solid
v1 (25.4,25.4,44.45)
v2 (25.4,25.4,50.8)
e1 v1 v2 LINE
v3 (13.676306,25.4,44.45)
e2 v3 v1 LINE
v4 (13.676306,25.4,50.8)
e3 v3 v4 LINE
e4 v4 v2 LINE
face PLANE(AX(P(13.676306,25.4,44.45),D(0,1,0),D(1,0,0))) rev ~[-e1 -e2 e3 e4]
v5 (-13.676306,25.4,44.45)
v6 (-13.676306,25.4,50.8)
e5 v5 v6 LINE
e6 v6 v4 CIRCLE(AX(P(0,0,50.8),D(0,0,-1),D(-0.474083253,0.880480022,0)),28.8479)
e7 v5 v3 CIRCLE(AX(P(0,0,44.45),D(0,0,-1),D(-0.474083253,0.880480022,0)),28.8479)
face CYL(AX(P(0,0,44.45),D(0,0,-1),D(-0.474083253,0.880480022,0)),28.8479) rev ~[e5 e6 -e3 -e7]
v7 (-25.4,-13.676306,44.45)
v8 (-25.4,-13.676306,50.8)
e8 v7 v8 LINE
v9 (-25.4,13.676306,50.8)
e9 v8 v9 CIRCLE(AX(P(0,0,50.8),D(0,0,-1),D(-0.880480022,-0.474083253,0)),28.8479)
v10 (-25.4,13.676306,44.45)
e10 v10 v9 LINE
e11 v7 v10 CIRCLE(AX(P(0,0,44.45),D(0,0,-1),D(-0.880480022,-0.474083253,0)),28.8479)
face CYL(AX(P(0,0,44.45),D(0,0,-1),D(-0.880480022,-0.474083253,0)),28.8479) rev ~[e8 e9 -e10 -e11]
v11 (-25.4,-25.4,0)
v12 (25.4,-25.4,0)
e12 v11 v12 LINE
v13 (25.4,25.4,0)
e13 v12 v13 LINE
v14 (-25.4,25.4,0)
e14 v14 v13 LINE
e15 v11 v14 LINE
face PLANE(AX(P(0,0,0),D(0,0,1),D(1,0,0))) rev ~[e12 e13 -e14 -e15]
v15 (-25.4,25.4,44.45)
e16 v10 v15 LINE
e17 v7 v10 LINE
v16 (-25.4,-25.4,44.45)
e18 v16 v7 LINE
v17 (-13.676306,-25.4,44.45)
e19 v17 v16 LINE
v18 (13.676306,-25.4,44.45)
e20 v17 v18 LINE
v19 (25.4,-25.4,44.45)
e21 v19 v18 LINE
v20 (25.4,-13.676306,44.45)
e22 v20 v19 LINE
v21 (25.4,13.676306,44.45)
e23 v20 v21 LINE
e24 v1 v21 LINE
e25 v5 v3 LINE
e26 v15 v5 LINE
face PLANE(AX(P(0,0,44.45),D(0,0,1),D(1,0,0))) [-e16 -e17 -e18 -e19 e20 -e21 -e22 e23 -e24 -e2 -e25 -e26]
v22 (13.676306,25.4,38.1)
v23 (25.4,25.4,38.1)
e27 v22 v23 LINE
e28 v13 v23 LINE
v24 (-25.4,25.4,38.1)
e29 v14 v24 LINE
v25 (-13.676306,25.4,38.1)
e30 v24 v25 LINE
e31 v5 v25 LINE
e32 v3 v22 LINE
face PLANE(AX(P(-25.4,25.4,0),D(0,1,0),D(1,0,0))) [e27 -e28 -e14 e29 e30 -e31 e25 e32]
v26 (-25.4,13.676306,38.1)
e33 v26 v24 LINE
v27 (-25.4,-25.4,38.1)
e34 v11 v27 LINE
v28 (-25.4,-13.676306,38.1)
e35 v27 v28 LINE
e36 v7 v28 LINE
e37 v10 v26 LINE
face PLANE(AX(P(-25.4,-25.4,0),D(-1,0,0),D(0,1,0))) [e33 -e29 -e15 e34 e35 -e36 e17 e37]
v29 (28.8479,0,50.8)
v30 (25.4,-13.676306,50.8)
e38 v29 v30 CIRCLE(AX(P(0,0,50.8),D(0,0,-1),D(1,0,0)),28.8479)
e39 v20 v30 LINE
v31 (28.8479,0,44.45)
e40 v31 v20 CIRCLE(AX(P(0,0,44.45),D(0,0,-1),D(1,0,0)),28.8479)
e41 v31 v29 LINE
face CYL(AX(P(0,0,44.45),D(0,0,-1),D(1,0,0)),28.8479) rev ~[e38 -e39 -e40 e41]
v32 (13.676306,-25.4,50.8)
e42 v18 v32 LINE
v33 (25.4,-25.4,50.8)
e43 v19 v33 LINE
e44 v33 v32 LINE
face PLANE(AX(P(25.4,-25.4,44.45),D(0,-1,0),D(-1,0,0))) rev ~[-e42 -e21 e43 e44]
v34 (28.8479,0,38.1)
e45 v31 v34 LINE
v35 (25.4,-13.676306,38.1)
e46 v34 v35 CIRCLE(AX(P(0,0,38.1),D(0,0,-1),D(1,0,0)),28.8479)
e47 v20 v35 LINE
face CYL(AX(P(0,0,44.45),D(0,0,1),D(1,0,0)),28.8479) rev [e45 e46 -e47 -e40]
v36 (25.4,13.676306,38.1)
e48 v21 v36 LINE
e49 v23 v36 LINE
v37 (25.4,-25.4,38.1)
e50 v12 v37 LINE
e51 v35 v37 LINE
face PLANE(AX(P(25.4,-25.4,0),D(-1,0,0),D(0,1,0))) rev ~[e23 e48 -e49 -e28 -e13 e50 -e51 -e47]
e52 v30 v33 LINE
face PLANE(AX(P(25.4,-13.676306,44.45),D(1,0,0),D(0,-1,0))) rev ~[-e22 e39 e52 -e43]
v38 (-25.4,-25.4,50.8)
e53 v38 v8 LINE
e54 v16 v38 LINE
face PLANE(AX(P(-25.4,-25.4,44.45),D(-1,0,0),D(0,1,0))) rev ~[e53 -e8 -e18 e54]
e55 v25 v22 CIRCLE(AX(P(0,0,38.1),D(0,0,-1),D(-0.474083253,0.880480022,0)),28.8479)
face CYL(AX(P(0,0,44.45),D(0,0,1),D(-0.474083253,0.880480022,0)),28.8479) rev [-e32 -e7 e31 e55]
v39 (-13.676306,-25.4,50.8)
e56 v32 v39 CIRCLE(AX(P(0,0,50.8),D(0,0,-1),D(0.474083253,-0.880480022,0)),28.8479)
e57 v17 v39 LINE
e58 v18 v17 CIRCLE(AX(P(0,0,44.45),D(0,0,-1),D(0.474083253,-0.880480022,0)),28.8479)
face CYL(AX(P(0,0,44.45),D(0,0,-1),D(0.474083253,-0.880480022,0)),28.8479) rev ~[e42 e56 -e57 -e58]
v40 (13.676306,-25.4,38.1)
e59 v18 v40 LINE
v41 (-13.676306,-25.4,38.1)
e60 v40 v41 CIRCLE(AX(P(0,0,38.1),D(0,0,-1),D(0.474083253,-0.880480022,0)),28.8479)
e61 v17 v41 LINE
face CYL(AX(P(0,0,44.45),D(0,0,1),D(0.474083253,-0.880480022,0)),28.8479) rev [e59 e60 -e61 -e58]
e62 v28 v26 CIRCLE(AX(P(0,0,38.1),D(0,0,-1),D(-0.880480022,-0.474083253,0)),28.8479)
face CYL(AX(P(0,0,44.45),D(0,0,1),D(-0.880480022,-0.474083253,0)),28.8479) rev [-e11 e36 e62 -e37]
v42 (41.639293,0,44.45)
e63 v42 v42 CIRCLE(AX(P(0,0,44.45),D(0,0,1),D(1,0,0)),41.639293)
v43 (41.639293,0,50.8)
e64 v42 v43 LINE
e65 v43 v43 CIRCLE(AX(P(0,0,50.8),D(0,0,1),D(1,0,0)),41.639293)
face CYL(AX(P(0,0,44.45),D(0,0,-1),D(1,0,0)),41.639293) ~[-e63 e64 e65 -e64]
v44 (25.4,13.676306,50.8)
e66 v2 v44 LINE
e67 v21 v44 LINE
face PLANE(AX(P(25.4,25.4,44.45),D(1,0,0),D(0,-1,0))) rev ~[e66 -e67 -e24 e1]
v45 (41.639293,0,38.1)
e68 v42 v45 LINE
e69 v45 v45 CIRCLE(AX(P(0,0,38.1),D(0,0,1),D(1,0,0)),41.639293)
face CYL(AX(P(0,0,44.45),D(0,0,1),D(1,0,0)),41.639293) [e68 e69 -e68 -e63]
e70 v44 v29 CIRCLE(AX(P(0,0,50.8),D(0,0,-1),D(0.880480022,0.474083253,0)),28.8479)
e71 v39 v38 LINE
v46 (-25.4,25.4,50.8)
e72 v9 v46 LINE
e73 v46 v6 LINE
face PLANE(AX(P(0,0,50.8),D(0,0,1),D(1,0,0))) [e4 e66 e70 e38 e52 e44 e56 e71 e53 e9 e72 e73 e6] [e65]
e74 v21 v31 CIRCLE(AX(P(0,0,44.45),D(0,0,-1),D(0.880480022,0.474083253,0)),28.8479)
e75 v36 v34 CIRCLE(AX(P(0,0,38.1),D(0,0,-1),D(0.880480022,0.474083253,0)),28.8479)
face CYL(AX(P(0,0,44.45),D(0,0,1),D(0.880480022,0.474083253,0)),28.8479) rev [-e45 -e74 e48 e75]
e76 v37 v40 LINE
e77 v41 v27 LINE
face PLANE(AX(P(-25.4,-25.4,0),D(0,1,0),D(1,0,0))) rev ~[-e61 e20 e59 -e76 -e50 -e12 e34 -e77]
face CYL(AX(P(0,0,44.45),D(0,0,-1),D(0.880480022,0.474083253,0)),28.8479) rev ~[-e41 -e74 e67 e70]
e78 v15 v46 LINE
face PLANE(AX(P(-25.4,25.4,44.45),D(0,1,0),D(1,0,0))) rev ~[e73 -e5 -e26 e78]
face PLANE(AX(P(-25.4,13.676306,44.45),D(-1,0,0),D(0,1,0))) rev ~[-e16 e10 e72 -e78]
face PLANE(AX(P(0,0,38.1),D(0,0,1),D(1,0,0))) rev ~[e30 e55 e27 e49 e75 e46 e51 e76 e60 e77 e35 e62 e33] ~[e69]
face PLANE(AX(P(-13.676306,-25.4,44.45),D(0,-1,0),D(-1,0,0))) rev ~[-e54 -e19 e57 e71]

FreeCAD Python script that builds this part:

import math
import FreeCAD as App
import Part
import Sketcher

V = App.Vector
Q = App.Units.Quantity

doc = App.newDocument("Part")
body = doc.addObject("PartDesign::Body", "Body")

# Sketch on XY plane
sketch1 = body.newObject("Sketcher::SketchObject", "Sketch")
sketch1.AttachmentSupport = (doc.getObject("XY_Plane"), [""])
sketch1.MapMode = "FlatFace"
sketch1.addGeometry([
    Part.LineSegment(V(-25, 25, 0), V(-25, -25, 0)),
    Part.LineSegment(V(-25, -25, 0), V(25, -25, 0)),
    Part.LineSegment(V(25, -25, 0), V(25, 25, 0)),
    Part.LineSegment(V(25, 25, 0), V(-25, 25, 0)),
], False)
sketch1.addConstraint([
    Sketcher.Constraint("Coincident", 0, 2, 1, 1),
    Sketcher.Constraint("Coincident", 1, 2, 2, 1),
    Sketcher.Constraint("Coincident", 2, 2, 3, 1),
    Sketcher.Constraint("Coincident", 3, 2, 0, 1),
    Sketcher.Constraint("Vertical", 0),
    Sketcher.Constraint("Horizontal", 1),
    Sketcher.Constraint("Vertical", 2),
    Sketcher.Constraint("Horizontal", 3),
    Sketcher.Constraint("Symmetric", 0, 2, 2, 2, -1, 1),
    Sketcher.Constraint("Equal", 3, 0),
    Sketcher.Constraint("DistanceX", 1, 1, 1, 2, Q("2 in")),
])
pad1 = body.newObject("PartDesign::Pad", "Pad")
pad1.Profile = sketch1
pad1.Length = Q("1.75 in")

# Sketch on XY plane
sketch2 = body.newObject("Sketcher::SketchObject", "Sketch001")
sketch2.AttachmentSupport = (doc.getObject("XY_Plane"), [""])
sketch2.MapMode = "FlatFace"
sketch2.AttachmentOffset = App.Placement(V(0, 0, 1.75 * 25.4), App.Rotation())
sketch2.addGeometry([
    Part.Circle(V(0, 0, 0), V(0, 0, 1), 42),  # 0
    Part.LineSegment(V(25, 25, 0), V(25, 14, 0)),  # 1
    Part.ArcOfCircle(Part.Circle(V(0, 0, 0), V(0, 0, 1), 29), math.radians(0), math.radians(28)),  # 2
    Part.ArcOfCircle(Part.Circle(V(0, 0, 0), V(0, 0, 1), 29), math.radians(-28), math.radians(0)),  # 3
    Part.LineSegment(V(25, -14, 0), V(25, -25, 0)),  # 4
    Part.LineSegment(V(25, -25, 0), V(14, -25, 0)),  # 5
    Part.ArcOfCircle(Part.Circle(V(0, 0, 0), V(0, 0, 1), 29), math.radians(-118), math.radians(-62)),  # 6
    Part.LineSegment(V(-14, -25, 0), V(-25, -25, 0)),  # 7
    Part.LineSegment(V(-25, -25, 0), V(-25, -14, 0)),  # 8
    Part.ArcOfCircle(Part.Circle(V(0, 0, 0), V(0, 0, 1), 29), math.radians(152), math.radians(208)),  # 9
    Part.LineSegment(V(-25, 14, 0), V(-25, 25, 0)),  # 10
    Part.LineSegment(V(-25, 25, 0), V(-14, 25, 0)),  # 11
    Part.ArcOfCircle(Part.Circle(V(0, 0, 0), V(0, 0, 1), 29), math.radians(62), math.radians(118)),  # 12
    Part.LineSegment(V(14, 25, 0), V(25, 25, 0)),  # 13
], False)
sketch2.addConstraint([
    Sketcher.Constraint("Coincident", 1, 2, 2, 2),
    Sketcher.Constraint("Tangent", 2, 1, 3, 2),
    Sketcher.Constraint("Coincident", 3, 1, 4, 1),
    Sketcher.Constraint("Coincident", 4, 2, 5, 1),
    Sketcher.Constraint("Coincident", 5, 2, 6, 2),
    Sketcher.Constraint("Coincident", 6, 1, 7, 1),
    Sketcher.Constraint("Coincident", 7, 2, 8, 1),
    Sketcher.Constraint("Coincident", 8, 2, 9, 2),
    Sketcher.Constraint("Coincident", 9, 1, 10, 1),
    Sketcher.Constraint("Coincident", 10, 2, 11, 1),
    Sketcher.Constraint("Coincident", 11, 2, 12, 2),
    Sketcher.Constraint("Coincident", 12, 1, 13, 1),
    Sketcher.Constraint("Coincident", 13, 2, 1, 1),
    Sketcher.Constraint("Vertical", 1),
    Sketcher.Constraint("Vertical", 4),
    Sketcher.Constraint("Horizontal", 5),
    Sketcher.Constraint("Horizontal", 7),
    Sketcher.Constraint("Vertical", 8),
    Sketcher.Constraint("Vertical", 10),
    Sketcher.Constraint("Horizontal", 11),
    Sketcher.Constraint("Horizontal", 13),
    Sketcher.Constraint("Coincident", 0, 3, -1, 1),
    Sketcher.Constraint("Coincident", 2, 3, -1, 1),
    Sketcher.Constraint("Coincident", 6, 3, -1, 1),
    Sketcher.Constraint("Coincident", 9, 3, -1, 1),
    Sketcher.Constraint("Coincident", 12, 3, -1, 1),
    Sketcher.Constraint("Equal", 2, 3),
    Sketcher.Constraint("Equal", 3, 6),
    Sketcher.Constraint("Equal", 6, 9),
    Sketcher.Constraint("Equal", 9, 12),
    Sketcher.Constraint("Symmetric", 4, 2, 10, 2, -1, 1),
    Sketcher.Constraint("Symmetric", 7, 2, 13, 2, -1, 1),
    Sketcher.Constraint("Symmetric", 4, 2, 7, 2, -2),
    Sketcher.Constraint("PointOnObject", 2, 1, -1),
    Sketcher.Constraint("Equal", 13, 1),
    Sketcher.Constraint("DistanceX", -1, 1, 1, 2, Q("1 in")),
    Sketcher.Constraint("Radius", 2, Q("28.8479 mm")),
    Sketcher.Constraint("Diameter", 0, Q("83.278587 mm")),
])
pad2 = body.newObject("PartDesign::Pad", "Pad001")
pad2.Profile = sketch2
pad2.Type = "TwoLengths"
pad2.Length = Q("0.25 in")
pad2.Length2 = Q("0.25 in")
pad2.Reversed = True

doc.recompute()
